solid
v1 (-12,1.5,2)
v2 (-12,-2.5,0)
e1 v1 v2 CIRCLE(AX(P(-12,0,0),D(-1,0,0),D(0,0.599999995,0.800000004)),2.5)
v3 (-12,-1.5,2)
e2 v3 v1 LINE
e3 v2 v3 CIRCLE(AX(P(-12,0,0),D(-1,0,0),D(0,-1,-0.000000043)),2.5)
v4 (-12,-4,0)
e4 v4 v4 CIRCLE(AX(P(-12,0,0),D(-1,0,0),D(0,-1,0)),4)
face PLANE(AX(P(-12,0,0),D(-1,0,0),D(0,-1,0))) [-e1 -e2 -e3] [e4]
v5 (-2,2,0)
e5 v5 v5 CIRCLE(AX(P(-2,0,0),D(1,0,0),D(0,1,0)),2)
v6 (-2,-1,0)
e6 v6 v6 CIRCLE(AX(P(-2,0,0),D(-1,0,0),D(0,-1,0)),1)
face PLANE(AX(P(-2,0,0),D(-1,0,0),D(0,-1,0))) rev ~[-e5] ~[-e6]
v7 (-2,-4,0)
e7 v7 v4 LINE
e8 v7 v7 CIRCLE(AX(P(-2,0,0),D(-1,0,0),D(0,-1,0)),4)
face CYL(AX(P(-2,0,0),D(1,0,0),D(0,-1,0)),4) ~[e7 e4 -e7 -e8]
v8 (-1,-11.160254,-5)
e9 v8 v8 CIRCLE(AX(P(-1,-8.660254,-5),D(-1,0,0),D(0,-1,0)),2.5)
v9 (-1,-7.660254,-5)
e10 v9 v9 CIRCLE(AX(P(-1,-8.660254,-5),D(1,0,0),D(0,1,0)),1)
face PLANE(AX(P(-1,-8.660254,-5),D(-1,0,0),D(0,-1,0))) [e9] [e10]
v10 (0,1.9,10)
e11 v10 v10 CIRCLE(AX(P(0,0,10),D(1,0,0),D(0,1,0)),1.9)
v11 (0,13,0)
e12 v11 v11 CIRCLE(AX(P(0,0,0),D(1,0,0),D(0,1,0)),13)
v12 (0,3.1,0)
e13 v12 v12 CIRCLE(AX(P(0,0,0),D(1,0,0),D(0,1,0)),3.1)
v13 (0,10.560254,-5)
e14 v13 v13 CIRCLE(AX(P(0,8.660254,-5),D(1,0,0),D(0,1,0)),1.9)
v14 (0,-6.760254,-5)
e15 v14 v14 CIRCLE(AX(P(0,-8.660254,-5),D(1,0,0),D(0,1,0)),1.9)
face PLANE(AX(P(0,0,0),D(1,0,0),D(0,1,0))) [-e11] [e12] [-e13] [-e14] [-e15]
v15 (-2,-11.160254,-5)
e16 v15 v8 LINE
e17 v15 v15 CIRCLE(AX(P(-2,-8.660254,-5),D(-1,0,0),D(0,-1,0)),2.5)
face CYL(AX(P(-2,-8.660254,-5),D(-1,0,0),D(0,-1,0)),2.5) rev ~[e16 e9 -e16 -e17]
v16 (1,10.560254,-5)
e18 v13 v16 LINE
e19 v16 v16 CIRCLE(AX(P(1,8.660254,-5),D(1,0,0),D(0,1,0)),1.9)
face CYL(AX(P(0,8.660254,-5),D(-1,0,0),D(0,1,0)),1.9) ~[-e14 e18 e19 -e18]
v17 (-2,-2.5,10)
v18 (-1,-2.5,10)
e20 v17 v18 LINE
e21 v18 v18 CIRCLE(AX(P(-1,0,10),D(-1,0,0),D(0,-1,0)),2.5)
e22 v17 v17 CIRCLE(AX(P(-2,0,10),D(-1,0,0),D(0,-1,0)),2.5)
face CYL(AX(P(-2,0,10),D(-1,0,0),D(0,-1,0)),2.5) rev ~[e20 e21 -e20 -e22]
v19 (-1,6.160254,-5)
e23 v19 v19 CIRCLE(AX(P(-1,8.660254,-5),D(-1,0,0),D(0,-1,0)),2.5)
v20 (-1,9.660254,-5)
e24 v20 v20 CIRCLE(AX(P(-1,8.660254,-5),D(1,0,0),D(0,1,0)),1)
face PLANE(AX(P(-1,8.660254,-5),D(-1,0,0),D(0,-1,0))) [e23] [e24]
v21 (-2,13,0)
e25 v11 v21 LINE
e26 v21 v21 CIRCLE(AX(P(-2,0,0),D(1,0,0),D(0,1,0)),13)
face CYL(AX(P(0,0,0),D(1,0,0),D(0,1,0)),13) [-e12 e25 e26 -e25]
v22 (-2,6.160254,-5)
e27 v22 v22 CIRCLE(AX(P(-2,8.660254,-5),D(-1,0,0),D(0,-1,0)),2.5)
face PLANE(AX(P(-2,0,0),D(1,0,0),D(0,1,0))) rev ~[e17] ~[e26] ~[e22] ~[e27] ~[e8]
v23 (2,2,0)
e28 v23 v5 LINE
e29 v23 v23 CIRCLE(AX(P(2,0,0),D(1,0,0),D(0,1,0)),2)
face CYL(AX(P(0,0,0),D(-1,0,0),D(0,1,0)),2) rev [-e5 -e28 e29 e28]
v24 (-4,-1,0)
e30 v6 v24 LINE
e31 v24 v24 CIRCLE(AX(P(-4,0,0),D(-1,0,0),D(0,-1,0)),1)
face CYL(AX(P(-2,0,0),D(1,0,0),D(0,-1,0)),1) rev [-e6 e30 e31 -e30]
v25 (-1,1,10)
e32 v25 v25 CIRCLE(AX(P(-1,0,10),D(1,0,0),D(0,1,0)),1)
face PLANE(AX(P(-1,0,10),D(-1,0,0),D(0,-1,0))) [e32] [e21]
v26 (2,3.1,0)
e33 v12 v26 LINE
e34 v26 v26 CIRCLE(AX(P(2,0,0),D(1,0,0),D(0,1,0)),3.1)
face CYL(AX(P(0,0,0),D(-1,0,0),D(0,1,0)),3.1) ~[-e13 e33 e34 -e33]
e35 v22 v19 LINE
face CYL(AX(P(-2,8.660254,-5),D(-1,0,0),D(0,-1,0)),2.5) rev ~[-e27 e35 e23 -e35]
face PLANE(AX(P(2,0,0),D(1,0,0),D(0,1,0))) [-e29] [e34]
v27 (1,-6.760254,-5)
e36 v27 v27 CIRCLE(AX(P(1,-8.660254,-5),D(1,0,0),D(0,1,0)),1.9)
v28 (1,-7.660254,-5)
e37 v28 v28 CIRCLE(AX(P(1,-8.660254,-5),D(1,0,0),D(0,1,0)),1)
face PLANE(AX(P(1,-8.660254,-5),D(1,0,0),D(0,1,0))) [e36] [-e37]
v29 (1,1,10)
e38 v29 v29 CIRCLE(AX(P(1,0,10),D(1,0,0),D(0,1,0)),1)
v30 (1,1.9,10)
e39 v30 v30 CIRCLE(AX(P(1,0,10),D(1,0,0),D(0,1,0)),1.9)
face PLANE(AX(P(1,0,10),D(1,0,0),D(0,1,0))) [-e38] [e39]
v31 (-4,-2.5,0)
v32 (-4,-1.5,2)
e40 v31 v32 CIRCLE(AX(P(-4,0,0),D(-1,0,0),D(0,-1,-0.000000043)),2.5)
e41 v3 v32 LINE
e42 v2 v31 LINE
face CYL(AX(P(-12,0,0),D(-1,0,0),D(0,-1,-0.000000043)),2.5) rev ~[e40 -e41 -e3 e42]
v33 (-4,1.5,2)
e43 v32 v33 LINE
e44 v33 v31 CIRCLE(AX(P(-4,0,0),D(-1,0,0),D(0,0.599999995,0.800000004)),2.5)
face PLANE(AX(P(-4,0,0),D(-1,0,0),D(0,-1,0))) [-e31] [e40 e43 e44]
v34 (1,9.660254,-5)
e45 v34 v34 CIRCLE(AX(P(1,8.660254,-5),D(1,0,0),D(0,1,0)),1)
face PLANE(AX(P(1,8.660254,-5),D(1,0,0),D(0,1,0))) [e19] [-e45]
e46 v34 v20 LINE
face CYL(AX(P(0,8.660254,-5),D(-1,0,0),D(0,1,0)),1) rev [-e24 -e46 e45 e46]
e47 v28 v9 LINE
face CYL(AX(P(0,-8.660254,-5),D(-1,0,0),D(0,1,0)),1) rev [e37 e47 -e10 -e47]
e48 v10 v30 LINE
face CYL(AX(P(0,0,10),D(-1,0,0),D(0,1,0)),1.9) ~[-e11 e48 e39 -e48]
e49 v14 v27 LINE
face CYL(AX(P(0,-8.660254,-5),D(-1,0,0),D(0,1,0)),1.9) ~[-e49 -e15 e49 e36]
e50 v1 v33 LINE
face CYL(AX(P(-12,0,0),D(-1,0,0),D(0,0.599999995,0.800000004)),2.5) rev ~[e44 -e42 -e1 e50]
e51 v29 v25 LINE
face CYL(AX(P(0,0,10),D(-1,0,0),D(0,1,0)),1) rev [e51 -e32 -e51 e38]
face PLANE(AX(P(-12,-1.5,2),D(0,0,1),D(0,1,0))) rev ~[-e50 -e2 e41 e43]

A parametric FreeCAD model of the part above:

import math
import FreeCAD as App
import Part
import Sketcher
from FreeCAD import Vector

doc = App.newDocument("Part")
body = doc.addObject("PartDesign::Body", "Body")

# Sketch on YZ plane
sketch1 = body.newObject("Sketcher::SketchObject", "Sketch")
sketch1.AttachmentSupport = (doc.getObject("YZ_Plane"), [""])
sketch1.MapMode = "FlatFace"
sketch1.addGeometry(Part.Circle(Vector(0, 0, 0), Vector(0, 0, 1), 13), False)
sketch1.addGeometry(Part.Circle(Vector(-8.660254, -5, 0), Vector(0, 0, 1), 1), False)
sketch1.addGeometry(Part.Circle(Vector(8.660254, -5, 0), Vector(0, 0, 1), 1), False)
sketch1.addGeometry(Part.Circle(Vector(0, 0, 0), Vector(0, 0, 1), 2), False)
sketch1.addGeometry(Part.Circle(Vector(0, 10, 0), Vector(0, 0, 1), 1), False)
sketch1.addConstraint(Sketcher.Constraint("Coincident", 0, 3, -1, 1))
sketch1.addConstraint(Sketcher.Constraint("Coincident", 3, 3, -1, 1))
sketch1.addConstraint(Sketcher.Constraint("Equal", 1, 2))
sketch1.addConstraint(Sketcher.Constraint("Equal", 2, 4))
sketch1.addConstraint(Sketcher.Constraint("Symmetric", 1, 3, 2, 3, -2))
sketch1.addConstraint(Sketcher.Constraint("PointOnObject", 4, 3, -2))
sketch1.addConstraint(Sketcher.Constraint("Diameter", 0, 26.0))
sketch1.addConstraint(Sketcher.Constraint("Diameter", 1, 2.0))
sketch1.addConstraint(Sketcher.Constraint("Diameter", 3, 4.0))
sketch1.addConstraint(Sketcher.Constraint("DistanceY", 1, 3, -1, 1, 5.0))
sketch1.addConstraint(Sketcher.Constraint("DistanceY", -1, 1, 4, 3, 10.0))
sketch1.addConstraint(Sketcher.Constraint("DistanceX", 1, 3, 2, 3, 17.320508))
pad1 = body.newObject("PartDesign::Pad", "Pad")
pad1.Profile = sketch1
pad1.Length = 2
pad1.Reversed = True

# Sketch on YZ plane
sketch2 = body.newObject("Sketcher::SketchObject", "Sketch001")
sketch2.AttachmentSupport = (doc.getObject("YZ_Plane"), [""])
sketch2.MapMode = "FlatFace"
sketch2.AttachmentOffset = App.Placement(Vector(0, 0, -2), App.Rotation())
sketch2.addGeometry(Part.Circle(Vector(0, 0, 0), Vector(0, 0, 1), 4), False)
sketch2.addGeometry(Part.Circle(Vector(0, 0, 0), Vector(0, 0, 1), 1), False)
sketch2.addConstraint(Sketcher.Constraint("Coincident", 0, 3, -1, 1))
sketch2.addConstraint(Sketcher.Constraint("Coincident", 1, 3, -1, 1))
sketch2.addConstraint(Sketcher.Constraint("Diameter", 0, 8.0))
sketch2.addConstraint(Sketcher.Constraint("Diameter", 1, 2.0))
pad2 = body.newObject("PartDesign::Pad", "Pad001")
pad2.Profile = sketch2
pad2.Length = 10
pad2.Reversed = True

# Sketch on YZ plane
sketch3 = body.newObject("Sketcher::SketchObject", "Sketch002")
sketch3.AttachmentSupport = (doc.getObject("YZ_Plane"), [""])
sketch3.MapMode = "FlatFace"
sketch3.AttachmentOffset = App.Placement(Vector(0, 0, -2), App.Rotation())
sketch3.addGeometry(Part.Circle(Vector(0, 10, 0), Vector(0, 0, 1), 2.5), False)
sketch3.addGeometry(Part.Circle(Vector(0, 10, 0), Vector(0, 0, 1), 1), False)
sketch3.addGeometry(Part.Circle(Vector(-8.660254, -5, 0), Vector(0, 0, 1), 2.5), False)
sketch3.addGeometry(Part.Circle(Vector(-8.660254, -5, 0), Vector(0, 0, 1), 1), False)
sketch3.addGeometry(Part.Circle(Vector(8.660254, -5, 0), Vector(0, 0, 1), 2.5), False)
sketch3.addGeometry(Part.Circle(Vector(8.660254, -5, 0), Vector(0, 0, 1), 1), False)
sketch3.addConstraint(Sketcher.Constraint("Coincident", 1, 3, 0, 3))
sketch3.addConstraint(Sketcher.Constraint("Coincident", 3, 3, 2, 3))
sketch3.addConstraint(Sketcher.Constraint("Coincident", 5, 3, 4, 3))
sketch3.addConstraint(Sketcher.Constraint("Equal", 0, 2))
sketch3.addConstraint(Sketcher.Constraint("Equal", 1, 3))
sketch3.addConstraint(Sketcher.Constraint("Equal", 2, 4))
sketch3.addConstraint(Sketcher.Constraint("Equal", 3, 5))
sketch3.addConstraint(Sketcher.Constraint("Symmetric", 2, 3, 4, 3, -2))
sketch3.addConstraint(Sketcher.Constraint("PointOnObject", 0, 3, -2))
sketch3.addConstraint(Sketcher.Constraint("Diameter", 0, 5.0))
sketch3.addConstraint(Sketcher.Constraint("Diameter", 1, 2.0))
sketch3.addConstraint(Sketcher.Constraint("DistanceY", -1, 1, 0, 3, 10.0))
sketch3.addConstraint(Sketcher.Constraint("DistanceY", 2, 3, -1, 1, 5.0))
sketch3.addConstraint(Sketcher.Constraint("DistanceX", 2, 3, 4, 3, 17.320508))
pocket1 = body.newObject("PartDesign::Pocket", "Pocket")
pocket1.Profile = sketch3
pocket1.Length = 1
pocket1.Reversed = True

# Sketch on YZ plane
sketch4 = body.newObject("Sketcher::SketchObject", "Sketch003")
sketch4.AttachmentSupport = (doc.getObject("YZ_Plane"), [""])
sketch4.MapMode = "FlatFace"
sketch4.AttachmentOffset = App.Placement(Vector(0, 0, -12), App.Rotation())
sketch4.addGeometry(Part.ArcOfCircle(Part.Circle(Vector(0, 0, 0), Vector(0, 0, 1), 2.5), math.radians(180), math.radians(413.130103)), False)
sketch4.addGeometry(Part.ArcOfCircle(Part.Circle(Vector(0, 0, 0), Vector(0, 0, 1), 2.5), math.radians(126.869895), math.radians(180.000002)), False)
sketch4.addGeometry(Part.LineSegment(Vector(-1.5, 2, 0), Vector(1.5, 2, 0)), False)
sketch4.addGeometry(Part.Circle(Vector(0, 0, 0), Vector(0, 0, 1), 1), False)
sketch4.addConstraint(Sketcher.Constraint("Tangent", 0, 1, 1, 2))
sketch4.addConstraint(Sketcher.Constraint("Coincident", 1, 1, 2, 1))
sketch4.addConstraint(Sketcher.Constraint("Coincident", 2, 2, 0, 2))
sketch4.addConstraint(Sketcher.Constraint("Horizontal", 2))
sketch4.addConstraint(Sketcher.Constraint("Coincident", 0, 3, -1, 1))
sketch4.addConstraint(Sketcher.Constraint("Coincident", 3, 3, -1, 1))
sketch4.addConstraint(Sketcher.Constraint("Equal", 0, 1))
sketch4.addConstraint(Sketcher.Constraint("PointOnObject", 0, 1, -1))
sketch4.addConstraint(Sketcher.Constraint("Diameter", 3, 2.0))
sketch4.addConstraint(Sketcher.Constraint("Radius", 0, 2.5))
sketch4.addConstraint(Sketcher.Constraint("DistanceX", 2, 1, 2, 2, 3.0))
pocket2 = body.newObject("PartDesign::Pocket", "Pocket001")
pocket2.Profile = sketch4
pocket2.Length = 8
pocket2.Reversed = True

# Sketch on YZ plane
sketch5 = body.newObject("Sketcher::SketchObject", "Sketch004")
sketch5.AttachmentSupport = (doc.getObject("YZ_Plane"), [""])
sketch5.MapMode = "FlatFace"
sketch5.addGeometry(Part.Circle(Vector(0, 10, 0), Vector(0, 0, 1), 1.9), False)
sketch5.addGeometry(Part.Circle(Vector(0, 10, 0), Vector(0, 0, 1), 1), False)
sketch5.addGeometry(Part.Circle(Vector(8.660254, -5, 0), Vector(0, 0, 1), 1.9), False)
sketch5.addGeometry(Part.Circle(Vector(8.660254, -5, 0), Vector(0, 0, 1), 1), False)
sketch5.addGeometry(Part.Circle(Vector(-8.660254, -5, 0), Vector(0, 0, 1), 1.9), False)
sketch5.addGeometry(Part.Circle(Vector(-8.660254, -5, 0), Vector(0, 0, 1), 1), False)
sketch5.addConstraint(Sketcher.Constraint("Coincident", 1, 3, 0, 3))
sketch5.addConstraint(Sketcher.Constraint("Coincident", 3, 3, 2, 3))
sketch5.addConstraint(Sketcher.Constraint("Coincident", 5, 3, 4, 3))
sketch5.addConstraint(Sketcher.Constraint("Equal", 0, 2))
sketch5.addConstraint(Sketcher.Constraint("Equal", 1, 3))
sketch5.addConstraint(Sketcher.Constraint("Equal", 2, 4))
sketch5.addConstraint(Sketcher.Constraint("Equal", 3, 5))
sketch5.addConstraint(Sketcher.Constraint("Symmetric", 2, 3, 4, 3, -2))
sketch5.addConstraint(Sketcher.Constraint("PointOnObject", 0, 3, -2))
sketch5.addConstraint(Sketcher.Constraint("Diameter", 1, 2.0))
sketch5.addConstraint(Sketcher.Constraint("Diameter", 0, 3.8))
sketch5.addConstraint(Sketcher.Constraint("DistanceY", -1, 1, 0, 3, 10.0))
sketch5.addConstraint(Sketcher.Constraint("DistanceY", 2, 3, -1, 1, 5.0))
sketch5.addConstraint(Sketcher.Constraint("DistanceX", 4, 3, 2, 3, 17.320508))
pad3 = body.newObject("PartDesign::Pad", "Pad002")
pad3.Profile = sketch5
pad3.Length = 1

# Sketch on YZ plane
sketch6 = body.newObject("Sketcher::SketchObject", "Sketch005")
sketch6.AttachmentSupport = (doc.getObject("YZ_Plane"), [""])
sketch6.MapMode = "FlatFace"
sketch6.addGeometry(Part.Circle(Vector(0, 0, 0), Vector(0, 0, 1), 3.1), False)
sketch6.addGeometry(Part.Circle(Vector(0, 0, 0), Vector(0, 0, 1), 2), False)
sketch6.addConstraint(Sketcher.Constraint("Coincident", 0, 3, -1, 1))
sketch6.addConstraint(Sketcher.Constraint("Coincident", 1, 3, -1, 1))
sketch6.addConstraint(Sketcher.Constraint("Diameter", 1, 4.0))
sketch6.addConstraint(Sketcher.Constraint("Diameter", 0, 6.2))
pad4 = body.newObject("PartDesign::Pad", "Pad003")
pad4.Profile = sketch6
pad4.Length = 2

doc.recompute()
